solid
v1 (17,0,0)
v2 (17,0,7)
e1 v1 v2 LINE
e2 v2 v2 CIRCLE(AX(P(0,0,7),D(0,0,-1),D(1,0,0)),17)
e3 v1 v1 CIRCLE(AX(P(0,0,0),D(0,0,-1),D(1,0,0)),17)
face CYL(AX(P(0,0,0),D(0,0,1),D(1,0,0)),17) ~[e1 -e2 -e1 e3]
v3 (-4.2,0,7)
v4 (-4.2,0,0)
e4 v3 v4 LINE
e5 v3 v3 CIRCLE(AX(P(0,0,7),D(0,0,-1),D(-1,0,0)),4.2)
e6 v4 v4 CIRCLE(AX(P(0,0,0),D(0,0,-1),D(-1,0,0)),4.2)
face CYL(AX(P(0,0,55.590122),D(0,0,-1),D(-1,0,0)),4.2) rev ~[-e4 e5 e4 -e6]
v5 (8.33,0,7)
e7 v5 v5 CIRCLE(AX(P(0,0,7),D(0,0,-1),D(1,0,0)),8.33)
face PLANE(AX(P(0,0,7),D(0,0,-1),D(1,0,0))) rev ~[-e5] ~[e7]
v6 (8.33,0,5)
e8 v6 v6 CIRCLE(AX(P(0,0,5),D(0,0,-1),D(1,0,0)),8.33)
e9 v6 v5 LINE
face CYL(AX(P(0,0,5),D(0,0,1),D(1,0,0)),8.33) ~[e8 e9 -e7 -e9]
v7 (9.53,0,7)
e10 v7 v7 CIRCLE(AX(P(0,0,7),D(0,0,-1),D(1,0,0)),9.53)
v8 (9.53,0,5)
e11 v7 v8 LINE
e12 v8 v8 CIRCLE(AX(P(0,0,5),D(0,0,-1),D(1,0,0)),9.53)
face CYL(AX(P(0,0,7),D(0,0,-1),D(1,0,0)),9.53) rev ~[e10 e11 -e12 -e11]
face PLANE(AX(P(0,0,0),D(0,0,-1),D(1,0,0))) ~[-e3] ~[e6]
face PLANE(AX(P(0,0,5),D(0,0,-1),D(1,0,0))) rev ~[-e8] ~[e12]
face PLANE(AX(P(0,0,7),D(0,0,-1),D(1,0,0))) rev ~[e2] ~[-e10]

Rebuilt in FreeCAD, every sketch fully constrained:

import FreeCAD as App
import Part
import Sketcher
from FreeCAD import Vector


def add_polygon(sketch, points):
    """Adds a closed chain of lines whose ends are joined by coincident constraints."""
    first, n = sketch.GeometryCount, len(points)
    for a, b in zip(points, points[1:] + points[:1]):
        sketch.addGeometry(Part.LineSegment(App.Vector(*a, 0), App.Vector(*b, 0)), False)
    for i in range(n):
        sketch.addConstraint(Sketcher.Constraint("Coincident", first + i, 2, first + (i + 1) % n, 1))

doc = App.newDocument("Part")
body = doc.addObject("PartDesign::Body", "Body")

sketch1 = body.newObject("Sketcher::SketchObject", "Sketch")
sketch1.AttachmentSupport = (doc.getObject("XZ_Plane"), [""])
sketch1.MapMode = "FlatFace"
add_polygon(sketch1, [(0, 7), (0, 0), (17, 0), (17, 7), (9.53, 7), (9.53, 5), (8.33, 5), (8.33, 7)])
sketch1.addConstraint([
    Sketcher.Constraint("Vertical", 0),
    Sketcher.Constraint("Horizontal", 1),
    Sketcher.Constraint("Vertical", 2),
    Sketcher.Constraint("Horizontal", 3),
    Sketcher.Constraint("Vertical", 4),
    Sketcher.Constraint("Horizontal", 5),
    Sketcher.Constraint("Vertical", 6),
    Sketcher.Constraint("Horizontal", 7),
    Sketcher.Constraint("Coincident", 0, 2, -1, 1),
    Sketcher.Constraint("Horizontal", 3, 2, 6, 2),
    Sketcher.Constraint("DistanceX", 1, 1, 1, 2, 17.0),
    Sketcher.Constraint("DistanceY", 0, 2, 0, 1, 7.0),
    Sketcher.Constraint("DistanceY", 4, 2, 4, 1, 2.0),
    Sketcher.Constraint("DistanceX", 5, 2, 5, 1, 1.2),
    Sketcher.Constraint("DistanceX", 3, 2, 3, 1, 7.47),
])
revolution = body.newObject("PartDesign::Revolution", "Revolution")
revolution.Profile = sketch1
revolution.ReferenceAxis = (sketch1, ["V_Axis"])
revolution.Angle = 360

sketch2 = body.newObject("Sketcher::SketchObject", "Sketch001")
sketch2.AttachmentSupport = (doc.getObject("XY_Plane"), [""])
sketch2.MapMode = "FlatFace"
sketch2.AttachmentOffset = App.Placement(Vector(0, 0, 7), App.Rotation())
sketch2.addGeometry(Part.Circle(Vector(0, 0, 0), Vector(0, 0, 1), 4.2), False)
sketch2.addConstraint([
    Sketcher.Constraint("Coincident", 0, 3, -1, 1),
    Sketcher.Constraint("Diameter", 0, 8.4),
])
doc.recompute()
hole = body.newObject("PartDesign::Hole", "Hole")
hole.Profile = sketch2
hole.ThreadType = "None"
hole.Diameter = 8.4
hole.DepthType = "ThroughAll"

doc.recompute()
